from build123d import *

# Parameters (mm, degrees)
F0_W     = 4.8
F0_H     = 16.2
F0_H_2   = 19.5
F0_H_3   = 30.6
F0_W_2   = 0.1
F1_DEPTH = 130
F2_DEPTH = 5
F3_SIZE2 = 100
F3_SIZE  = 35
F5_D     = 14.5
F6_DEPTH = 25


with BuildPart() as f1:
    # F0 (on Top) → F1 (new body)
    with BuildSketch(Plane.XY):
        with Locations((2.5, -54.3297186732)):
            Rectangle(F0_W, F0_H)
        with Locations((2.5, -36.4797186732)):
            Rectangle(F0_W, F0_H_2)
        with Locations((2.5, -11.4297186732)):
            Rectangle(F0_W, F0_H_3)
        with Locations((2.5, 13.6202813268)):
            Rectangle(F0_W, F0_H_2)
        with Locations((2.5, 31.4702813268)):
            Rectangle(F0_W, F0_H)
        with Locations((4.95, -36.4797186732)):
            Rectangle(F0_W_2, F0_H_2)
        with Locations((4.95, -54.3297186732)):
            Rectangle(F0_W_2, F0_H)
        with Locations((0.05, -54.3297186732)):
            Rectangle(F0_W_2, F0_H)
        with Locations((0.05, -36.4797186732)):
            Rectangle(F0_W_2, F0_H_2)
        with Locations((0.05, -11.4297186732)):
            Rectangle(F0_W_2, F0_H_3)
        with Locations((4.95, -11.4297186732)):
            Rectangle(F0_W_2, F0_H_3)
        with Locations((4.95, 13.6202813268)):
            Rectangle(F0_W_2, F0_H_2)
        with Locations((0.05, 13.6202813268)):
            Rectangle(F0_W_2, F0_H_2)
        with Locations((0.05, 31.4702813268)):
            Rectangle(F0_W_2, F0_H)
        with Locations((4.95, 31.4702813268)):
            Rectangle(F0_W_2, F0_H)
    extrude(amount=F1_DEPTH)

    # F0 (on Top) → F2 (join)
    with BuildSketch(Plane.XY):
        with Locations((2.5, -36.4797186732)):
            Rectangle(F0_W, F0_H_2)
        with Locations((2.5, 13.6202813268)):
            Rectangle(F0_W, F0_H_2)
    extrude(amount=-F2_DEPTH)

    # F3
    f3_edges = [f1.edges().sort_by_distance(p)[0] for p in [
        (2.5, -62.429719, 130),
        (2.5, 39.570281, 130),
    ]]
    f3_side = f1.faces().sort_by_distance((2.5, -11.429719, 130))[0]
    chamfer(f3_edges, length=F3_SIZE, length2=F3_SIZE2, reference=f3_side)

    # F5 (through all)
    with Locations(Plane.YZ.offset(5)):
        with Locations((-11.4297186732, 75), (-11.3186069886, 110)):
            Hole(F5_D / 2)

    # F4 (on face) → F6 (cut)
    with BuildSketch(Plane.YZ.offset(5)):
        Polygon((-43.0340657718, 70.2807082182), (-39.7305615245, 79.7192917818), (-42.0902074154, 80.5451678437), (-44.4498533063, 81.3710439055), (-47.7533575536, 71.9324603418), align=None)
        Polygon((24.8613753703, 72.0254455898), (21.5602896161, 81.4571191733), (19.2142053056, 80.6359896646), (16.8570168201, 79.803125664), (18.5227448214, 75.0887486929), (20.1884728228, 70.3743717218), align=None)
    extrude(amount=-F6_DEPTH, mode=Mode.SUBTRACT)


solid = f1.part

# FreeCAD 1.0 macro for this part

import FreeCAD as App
import Part
import Sketcher

V = App.Vector


def edges_at(feature, points):
    """Names of the edges that pass closest to the given points."""
    edges = feature.Shape.Edges
    near = lambda p: min(range(len(edges)), key=lambda i: edges[i].distToShape(Part.Vertex(*p))[0])
    return sorted({f"Edge{near(p) + 1}" for p in points})

doc = App.newDocument("Part")
body = doc.addObject("PartDesign::Body", "Body")

sketch1 = body.newObject("Sketcher::SketchObject", "Sketch")
sketch1.AttachmentSupport = (doc.getObject("XY_Plane"), [""])
sketch1.MapMode = "FlatFace"
sketch1.addGeometry([
    Part.LineSegment(V(5, -62, 0), V(5, 40, 0)),
    Part.LineSegment(V(5, 40, 0), V(0, 40, 0)),
    Part.LineSegment(V(0, 40, 0), V(0, -62, 0)),
    Part.LineSegment(V(0, -62, 0), V(5, -62, 0)),
], False)
sketch1.addConstraint([
    Sketcher.Constraint("Coincident", 0, 2, 1, 1),
    Sketcher.Constraint("Coincident", 1, 2, 2, 1),
    Sketcher.Constraint("Coincident", 2, 2, 3, 1),
    Sketcher.Constraint("Coincident", 3, 2, 0, 1),
    Sketcher.Constraint("Vertical", 0),
    Sketcher.Constraint("Horizontal", 1),
    Sketcher.Constraint("Vertical", 2),
    Sketcher.Constraint("Horizontal", 3),
    Sketcher.Constraint("PointOnObject", 1, 2, -2),
    Sketcher.Constraint("DistanceX", 1, 2, 1, 1, 5.0),
    Sketcher.Constraint("DistanceY", 0, 1, 0, 2, 102.0),
    Sketcher.Constraint("DistanceY", -1, 1, 0, 2, 39.570281),
])
pad1 = body.newObject("PartDesign::Pad", "Pad")
pad1.Profile = sketch1
pad1.Length = 130

sketch2 = body.newObject("Sketcher::SketchObject", "Sketch001")
sketch2.AttachmentSupport = (doc.getObject("XY_Plane"), [""])
sketch2.MapMode = "FlatFace"
sketch2.addGeometry([
    Part.LineSegment(V(0.1, -26.7, 0), V(0.1, -46.2, 0)),
    Part.LineSegment(V(0.1, -46.2, 0), V(4.9, -46.2, 0)),
    Part.LineSegment(V(4.9, -46.2, 0), V(4.9, -26.7, 0)),
    Part.LineSegment(V(4.9, -26.7, 0), V(0.1, -26.7, 0)),
    Part.LineSegment(V(0.1, 23.4, 0), V(0.1, 3.9, 0)),
    Part.LineSegment(V(0.1, 3.9, 0), V(4.9, 3.9, 0)),
    Part.LineSegment(V(4.9, 3.9, 0), V(4.9, 23.4, 0)),
    Part.LineSegment(V(4.9, 23.4, 0), V(0.1, 23.4, 0)),
], False)
sketch2.addConstraint([
    Sketcher.Constraint("Coincident", 0, 2, 1, 1),
    Sketcher.Constraint("Coincident", 1, 2, 2, 1),
    Sketcher.Constraint("Coincident", 2, 2, 3, 1),
    Sketcher.Constraint("Coincident", 3, 2, 0, 1),
    Sketcher.Constraint("Coincident", 4, 2, 5, 1),
    Sketcher.Constraint("Coincident", 5, 2, 6, 1),
    Sketcher.Constraint("Coincident", 6, 2, 7, 1),
    Sketcher.Constraint("Coincident", 7, 2, 4, 1),
    Sketcher.Constraint("Vertical", 0),
    Sketcher.Constraint("Horizontal", 1),
    Sketcher.Constraint("Vertical", 2),
    Sketcher.Constraint("Horizontal", 3),
    Sketcher.Constraint("Vertical", 4),
    Sketcher.Constraint("Horizontal", 5),
    Sketcher.Constraint("Vertical", 6),
    Sketcher.Constraint("Horizontal", 7),
    Sketcher.Constraint("Vertical", 3, 2, 4, 2),
    Sketcher.Constraint("Vertical", 2, 2, 5, 2),
    Sketcher.Constraint("Equal", 2, 4),
    Sketcher.Constraint("DistanceX", 1, 1, 1, 2, 4.8),
    Sketcher.Constraint("DistanceY", 0, 2, 0, 1, 19.5),
    Sketcher.Constraint("DistanceX", -1, 1, 0, 2, 0.1),
    Sketcher.Constraint("DistanceY", 3, 2, 4, 2, 30.6),
    Sketcher.Constraint("DistanceY", 0, 2, -1, 1, 46.229719),
])
pad2 = body.newObject("PartDesign::Pad", "Pad001")
pad2.Profile = sketch2
pad2.Length = 5
pad2.Reversed = True
doc.recompute()

chamfer = body.newObject("PartDesign::Chamfer", "Chamfer")
chamfer.Base = (pad2, edges_at(pad2, [(2.5, -62.43, 130), (2.5, 39.57, 130)]))
chamfer.ChamferType = "Two distances"
chamfer.Size = 35
chamfer.Size2 = 100
chamfer.FlipDirection = True

sketch3 = body.newObject("Sketcher::SketchObject", "Sketch002")
sketch3.AttachmentSupport = (doc.getObject("YZ_Plane"), [""])
sketch3.MapMode = "FlatFace"
sketch3.AttachmentOffset = App.Placement(V(0, 0, 5), App.Rotation())
sketch3.addGeometry([
    Part.Circle(V(-11, 75, 0), V(0, 0, 1), 7),
    Part.Circle(V(-11, 110, 0), V(0, 0, 1), 7),
], False)
sketch3.addConstraint([
    Sketcher.Constraint("Equal", 0, 1),
    Sketcher.Constraint("Diameter", 0, 14.5),
    Sketcher.Constraint("DistanceY", -1, 1, 0, 3, 75.0),
    Sketcher.Constraint("DistanceY", -1, 1, 1, 3, 110.0),
    Sketcher.Constraint("DistanceX", 0, 3, -1, 1, 11.429719),
    Sketcher.Constraint("DistanceX", 0, 3, 1, 3, 0.111112),
])
doc.recompute()
hole = body.newObject("PartDesign::Hole", "Hole")
hole.Profile = sketch3
hole.ThreadType = "None"
hole.Diameter = 14.5
hole.DepthType = "ThroughAll"

sketch4 = body.newObject("Sketcher::SketchObject", "Sketch003")
sketch4.AttachmentSupport = (doc.getObject("YZ_Plane"), [""])
sketch4.MapMode = "FlatFace"
sketch4.AttachmentOffset = App.Placement(V(0, 0, 5), App.Rotation())
sketch4.addGeometry([
    Part.LineSegment(V(-43, 70.3, 0), V(-39.7, 79.7, 0)),
    Part.LineSegment(V(-39.7, 79.7, 0), V(-42.1, 80.5, 0)),
    Part.LineSegment(V(-42.1, 80.5, 0), V(-44.4, 81.4, 0)),
    Part.LineSegment(V(-44.4, 81.4, 0), V(-47.8, 71.9, 0)),
    Part.LineSegment(V(-47.8, 71.9, 0), V(-43, 70.3, 0)),
    Part.LineSegment(V(24.9, 72, 0), V(21.6, 81.5, 0)),
    Part.LineSegment(V(21.6, 81.5, 0), V(19.2, 80.6, 0)),
    Part.LineSegment(V(19.2, 80.6, 0), V(16.9, 79.8, 0)),
    Part.LineSegment(V(16.9, 79.8, 0), V(18.5, 75.1, 0)),
    Part.LineSegment(V(18.5, 75.1, 0), V(20.2, 70.4, 0)),
    Part.LineSegment(V(20.2, 70.4, 0), V(24.9, 72, 0)),
], False)
sketch4.addConstraint([
    Sketcher.Constraint("Coincident", 0, 2, 1, 1),
    Sketcher.Constraint("Coincident", 1, 2, 2, 1),
    Sketcher.Constraint("Coincident", 2, 2, 3, 1),
    Sketcher.Constraint("Coincident", 3, 2, 4, 1),
    Sketcher.Constraint("Coincident", 4, 2, 0, 1),
    Sketcher.Constraint("Coincident", 5, 2, 6, 1),
    Sketcher.Constraint("Coincident", 6, 2, 7, 1),
    Sketcher.Constraint("Coincident", 7, 2, 8, 1),
    Sketcher.Constraint("Coincident", 8, 2, 9, 1),
    Sketcher.Constraint("Coincident", 9, 2, 10, 1),
    Sketcher.Constraint("Coincident", 10, 2, 5, 1),
    Sketcher.Constraint("Perpendicular", 0, 1),
    Sketcher.Constraint("Parallel", 1, 2),
    Sketcher.Constraint("Perpendicular", 2, 3),
    Sketcher.Constraint("Perpendicular", 3, 4),
    Sketcher.Constraint("Perpendicular", 5, 6),
    Sketcher.Constraint("Perpendicular", 7, 8),
    Sketcher.Constraint("Parallel", 8, 9),
    Sketcher.Constraint("Perpendicular", 9, 10),
    Sketcher.Constraint("Equal", 1, 2),
    Sketcher.Constraint("Equal", 2, 7),
    Sketcher.Constraint("Equal", 4, 8),
    Sketcher.Constraint("Equal", 8, 9),
    Sketcher.Constraint("Distance", 0, 10.0),
    Sketcher.Constraint("Distance", 4, 5.0),
    Sketcher.Constraint("Distance", 5, 9.992679),
    Sketcher.Constraint("Distance", 6, 2.485632),
    Sketcher.Constraint("DistanceX", 0, 2, -1, 1, 39.730562),
    Sketcher.Constraint("DistanceY", -1, 1, 0, 2, 79.719292),
    Sketcher.Constraint("DistanceY", -1, 1, 3, 2, 71.93246),
    Sketcher.Constraint("DistanceX", -1, 1, 5, 2, 21.56029),
    Sketcher.Constraint("DistanceY", -1, 1, 5, 2, 81.457119),
    Sketcher.Constraint("DistanceY", -1, 1, 6, 2, 80.63599),
])
pocket1 = body.newObject("PartDesign::Pocket", "Pocket")
pocket1.Profile = sketch4
pocket1.Length = 25

doc.recompute()
